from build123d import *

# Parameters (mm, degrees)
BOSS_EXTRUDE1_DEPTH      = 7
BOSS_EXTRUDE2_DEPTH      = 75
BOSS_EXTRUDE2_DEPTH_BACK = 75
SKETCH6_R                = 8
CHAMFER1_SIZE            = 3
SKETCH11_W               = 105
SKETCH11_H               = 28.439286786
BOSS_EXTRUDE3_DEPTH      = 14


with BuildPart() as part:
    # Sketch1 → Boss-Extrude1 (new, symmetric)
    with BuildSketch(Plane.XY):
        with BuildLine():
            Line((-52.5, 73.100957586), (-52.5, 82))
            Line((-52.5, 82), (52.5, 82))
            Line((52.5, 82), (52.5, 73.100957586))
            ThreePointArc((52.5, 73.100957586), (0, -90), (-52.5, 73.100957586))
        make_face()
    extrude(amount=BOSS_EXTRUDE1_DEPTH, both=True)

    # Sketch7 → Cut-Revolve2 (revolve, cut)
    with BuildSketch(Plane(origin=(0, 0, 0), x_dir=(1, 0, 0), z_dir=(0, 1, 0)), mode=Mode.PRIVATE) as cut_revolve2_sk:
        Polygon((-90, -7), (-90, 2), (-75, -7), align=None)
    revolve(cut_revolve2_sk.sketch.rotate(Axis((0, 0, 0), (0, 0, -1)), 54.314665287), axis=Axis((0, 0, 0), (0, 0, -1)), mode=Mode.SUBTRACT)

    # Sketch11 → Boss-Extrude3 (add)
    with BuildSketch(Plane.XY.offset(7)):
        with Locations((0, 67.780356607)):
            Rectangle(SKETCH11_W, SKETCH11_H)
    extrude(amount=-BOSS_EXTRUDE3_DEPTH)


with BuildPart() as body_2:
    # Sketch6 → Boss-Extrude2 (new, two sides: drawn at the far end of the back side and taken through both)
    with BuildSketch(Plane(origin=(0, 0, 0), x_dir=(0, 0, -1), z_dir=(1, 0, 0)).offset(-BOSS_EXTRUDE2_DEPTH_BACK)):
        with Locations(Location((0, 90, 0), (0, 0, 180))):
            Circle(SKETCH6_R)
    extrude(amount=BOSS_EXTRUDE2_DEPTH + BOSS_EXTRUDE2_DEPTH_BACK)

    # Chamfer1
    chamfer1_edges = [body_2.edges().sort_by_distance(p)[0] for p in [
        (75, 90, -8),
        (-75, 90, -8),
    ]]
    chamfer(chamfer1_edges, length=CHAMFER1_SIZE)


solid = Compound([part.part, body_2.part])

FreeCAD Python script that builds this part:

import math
import FreeCAD as App
import Part
import Sketcher


def edges_at(feature, points):
    """Names of the edges that pass closest to the given points."""
    edges = feature.Shape.Edges
    near = lambda p: min(range(len(edges)), key=lambda i: edges[i].distToShape(Part.Vertex(*p))[0])
    return sorted({f"Edge{near(p) + 1}" for p in points})


def add_polygon(sketch, points):
    """Adds a closed chain of lines whose ends are joined by coincident constraints."""
    first, n = sketch.GeometryCount, len(points)
    for a, b in zip(points, points[1:] + points[:1]):
        sketch.addGeometry(Part.LineSegment(App.Vector(*a, 0), App.Vector(*b, 0)), False)
    for i in range(n):
        sketch.addConstraint(Sketcher.Constraint("Coincident", first + i, 2, first + (i + 1) % n, 1))

doc = App.newDocument("Part")
body = doc.addObject("PartDesign::Body", "Body")

# Sketch on XY plane
sketch1 = doc.addObject("Sketcher::SketchObject", "Sketch")
body.addObject(sketch1)
sketch1.AttachmentSupport = (doc.XY_Plane, [""])
sketch1.MapMode = "FlatFace"
sketch1.addGeometry(Part.LineSegment(App.Vector(-52, 82, 0), App.Vector(-52, 73, 0)), False)
sketch1.addGeometry(Part.ArcOfCircle(Part.Circle(App.Vector(0, 0, 0), App.Vector(0, 0, 1), 90), math.radians(126), math.radians(414)), False)
sketch1.addGeometry(Part.LineSegment(App.Vector(52, 73, 0), App.Vector(52, 82, 0)), False)
sketch1.addGeometry(Part.LineSegment(App.Vector(52, 82, 0), App.Vector(-52, 82, 0)), False)
sketch1.addConstraint(Sketcher.Constraint("Coincident", 0, 2, 1, 1))
sketch1.addConstraint(Sketcher.Constraint("Coincident", 1, 2, 2, 1))
sketch1.addConstraint(Sketcher.Constraint("Coincident", 2, 2, 3, 1))
sketch1.addConstraint(Sketcher.Constraint("Coincident", 3, 2, 0, 1))
sketch1.addConstraint(Sketcher.Constraint("Vertical", 0))
sketch1.addConstraint(Sketcher.Constraint("Vertical", 2))
sketch1.addConstraint(Sketcher.Constraint("Horizontal", 3))
sketch1.addConstraint(Sketcher.Constraint("Coincident", 1, 3, -1, 1))
sketch1.addConstraint(Sketcher.Constraint("Horizontal", 0, 2, 1, 2))
sketch1.addConstraint(Sketcher.Constraint("Radius", 1, 90.0))
sketch1.addConstraint(Sketcher.Constraint("DistanceX", 3, 2, 3, 1, 105.0))
sketch1.addConstraint(Sketcher.Constraint("DistanceY", -1, 1, 2, 2, 82.0))
pad1 = doc.addObject("PartDesign::Pad", "Pad")
body.addObject(pad1)
pad1.Profile = sketch1
pad1.Length = 14
pad1.Midplane = True

# Sketch on XZ plane
sketch2 = doc.addObject("Sketcher::SketchObject", "Sketch001")
body.addObject(sketch2)
sketch2.AttachmentSupport = (doc.XZ_Plane, [""])
sketch2.MapMode = "FlatFace"
add_polygon(sketch2, [(-90, -2), (-90, 7), (-75, 7)])  # lines 0-2
sketch2.addConstraint(Sketcher.Constraint("Vertical", 0))
sketch2.addConstraint(Sketcher.Constraint("Horizontal", 1))
sketch2.addConstraint(Sketcher.Constraint("DistanceX", 1, 1, 1, 2, 15.0))
sketch2.addConstraint(Sketcher.Constraint("DistanceY", 0, 1, 0, 2, 9.0))
sketch2.addConstraint(Sketcher.Constraint("DistanceX", 0, 2, -1, 1, 90.0))
sketch2.addConstraint(Sketcher.Constraint("DistanceY", -1, 1, 0, 2, 7.0))
groove = doc.addObject("PartDesign::Groove", "Groove")
body.addObject(groove)
groove.Profile = sketch2
groove.ReferenceAxis = (sketch2, ["V_Axis"])
groove.Angle = 360

# Sketch on XY plane
sketch3 = doc.addObject("Sketcher::SketchObject", "Sketch002")
body.addObject(sketch3)
sketch3.AttachmentSupport = (doc.XY_Plane, [""])
sketch3.MapMode = "FlatFace"
sketch3.AttachmentOffset = App.Placement(App.Vector(0, 0, 7), App.Rotation())
add_polygon(sketch3, [(-52, 82), (-52, 54), (52, 54), (52, 82)])  # lines 0-3
sketch3.addConstraint(Sketcher.Constraint("Vertical", 0))
sketch3.addConstraint(Sketcher.Constraint("Horizontal", 1))
sketch3.addConstraint(Sketcher.Constraint("Vertical", 2))
sketch3.addConstraint(Sketcher.Constraint("Horizontal", 3))
sketch3.addConstraint(Sketcher.Constraint("DistanceX", 1, 1, 1, 2, 105.0))
sketch3.addConstraint(Sketcher.Constraint("DistanceY", -1, 1, 2, 2, 82.0))
sketch3.addConstraint(Sketcher.Constraint("DistanceX", 0, 2, -1, 1, 52.5))
sketch3.addConstraint(Sketcher.Constraint("DistanceY", 0, 2, 0, 1, 28.439287))
pad2 = doc.addObject("PartDesign::Pad", "Pad001")
body.addObject(pad2)
pad2.Profile = sketch3
pad2.Length = 14
pad2.Reversed = True
body2 = doc.addObject("PartDesign::Body", "Body001")

# Sketch on YZ plane
sketch4 = doc.addObject("Sketcher::SketchObject", "Sketch003")
body2.addObject(sketch4)
sketch4.AttachmentSupport = (doc.getObject("YZ_Plane001"), [""])
sketch4.MapMode = "FlatFace"
sketch4.addGeometry(Part.Circle(App.Vector(90, 0, 0), App.Vector(0, 0, 1), 8), False)
sketch4.addConstraint(Sketcher.Constraint("PointOnObject", 0, 3, -1))
sketch4.addConstraint(Sketcher.Constraint("Diameter", 0, 16.0))
sketch4.addConstraint(Sketcher.Constraint("DistanceX", -1, 1, 0, 3, 90.0))
pad3 = doc.addObject("PartDesign::Pad", "Pad002")
body2.addObject(pad3)
pad3.Profile = sketch4
pad3.Type = "TwoLengths"
pad3.Length = 75
pad3.Length2 = 75
doc.recompute()

chamfer = doc.addObject("PartDesign::Chamfer", "Chamfer")
body2.addObject(chamfer)
chamfer.Base = (pad3, edges_at(pad3, [(75, 90, -8), (-75, 90, -8)]))
chamfer.Size = 3

doc.recompute()
